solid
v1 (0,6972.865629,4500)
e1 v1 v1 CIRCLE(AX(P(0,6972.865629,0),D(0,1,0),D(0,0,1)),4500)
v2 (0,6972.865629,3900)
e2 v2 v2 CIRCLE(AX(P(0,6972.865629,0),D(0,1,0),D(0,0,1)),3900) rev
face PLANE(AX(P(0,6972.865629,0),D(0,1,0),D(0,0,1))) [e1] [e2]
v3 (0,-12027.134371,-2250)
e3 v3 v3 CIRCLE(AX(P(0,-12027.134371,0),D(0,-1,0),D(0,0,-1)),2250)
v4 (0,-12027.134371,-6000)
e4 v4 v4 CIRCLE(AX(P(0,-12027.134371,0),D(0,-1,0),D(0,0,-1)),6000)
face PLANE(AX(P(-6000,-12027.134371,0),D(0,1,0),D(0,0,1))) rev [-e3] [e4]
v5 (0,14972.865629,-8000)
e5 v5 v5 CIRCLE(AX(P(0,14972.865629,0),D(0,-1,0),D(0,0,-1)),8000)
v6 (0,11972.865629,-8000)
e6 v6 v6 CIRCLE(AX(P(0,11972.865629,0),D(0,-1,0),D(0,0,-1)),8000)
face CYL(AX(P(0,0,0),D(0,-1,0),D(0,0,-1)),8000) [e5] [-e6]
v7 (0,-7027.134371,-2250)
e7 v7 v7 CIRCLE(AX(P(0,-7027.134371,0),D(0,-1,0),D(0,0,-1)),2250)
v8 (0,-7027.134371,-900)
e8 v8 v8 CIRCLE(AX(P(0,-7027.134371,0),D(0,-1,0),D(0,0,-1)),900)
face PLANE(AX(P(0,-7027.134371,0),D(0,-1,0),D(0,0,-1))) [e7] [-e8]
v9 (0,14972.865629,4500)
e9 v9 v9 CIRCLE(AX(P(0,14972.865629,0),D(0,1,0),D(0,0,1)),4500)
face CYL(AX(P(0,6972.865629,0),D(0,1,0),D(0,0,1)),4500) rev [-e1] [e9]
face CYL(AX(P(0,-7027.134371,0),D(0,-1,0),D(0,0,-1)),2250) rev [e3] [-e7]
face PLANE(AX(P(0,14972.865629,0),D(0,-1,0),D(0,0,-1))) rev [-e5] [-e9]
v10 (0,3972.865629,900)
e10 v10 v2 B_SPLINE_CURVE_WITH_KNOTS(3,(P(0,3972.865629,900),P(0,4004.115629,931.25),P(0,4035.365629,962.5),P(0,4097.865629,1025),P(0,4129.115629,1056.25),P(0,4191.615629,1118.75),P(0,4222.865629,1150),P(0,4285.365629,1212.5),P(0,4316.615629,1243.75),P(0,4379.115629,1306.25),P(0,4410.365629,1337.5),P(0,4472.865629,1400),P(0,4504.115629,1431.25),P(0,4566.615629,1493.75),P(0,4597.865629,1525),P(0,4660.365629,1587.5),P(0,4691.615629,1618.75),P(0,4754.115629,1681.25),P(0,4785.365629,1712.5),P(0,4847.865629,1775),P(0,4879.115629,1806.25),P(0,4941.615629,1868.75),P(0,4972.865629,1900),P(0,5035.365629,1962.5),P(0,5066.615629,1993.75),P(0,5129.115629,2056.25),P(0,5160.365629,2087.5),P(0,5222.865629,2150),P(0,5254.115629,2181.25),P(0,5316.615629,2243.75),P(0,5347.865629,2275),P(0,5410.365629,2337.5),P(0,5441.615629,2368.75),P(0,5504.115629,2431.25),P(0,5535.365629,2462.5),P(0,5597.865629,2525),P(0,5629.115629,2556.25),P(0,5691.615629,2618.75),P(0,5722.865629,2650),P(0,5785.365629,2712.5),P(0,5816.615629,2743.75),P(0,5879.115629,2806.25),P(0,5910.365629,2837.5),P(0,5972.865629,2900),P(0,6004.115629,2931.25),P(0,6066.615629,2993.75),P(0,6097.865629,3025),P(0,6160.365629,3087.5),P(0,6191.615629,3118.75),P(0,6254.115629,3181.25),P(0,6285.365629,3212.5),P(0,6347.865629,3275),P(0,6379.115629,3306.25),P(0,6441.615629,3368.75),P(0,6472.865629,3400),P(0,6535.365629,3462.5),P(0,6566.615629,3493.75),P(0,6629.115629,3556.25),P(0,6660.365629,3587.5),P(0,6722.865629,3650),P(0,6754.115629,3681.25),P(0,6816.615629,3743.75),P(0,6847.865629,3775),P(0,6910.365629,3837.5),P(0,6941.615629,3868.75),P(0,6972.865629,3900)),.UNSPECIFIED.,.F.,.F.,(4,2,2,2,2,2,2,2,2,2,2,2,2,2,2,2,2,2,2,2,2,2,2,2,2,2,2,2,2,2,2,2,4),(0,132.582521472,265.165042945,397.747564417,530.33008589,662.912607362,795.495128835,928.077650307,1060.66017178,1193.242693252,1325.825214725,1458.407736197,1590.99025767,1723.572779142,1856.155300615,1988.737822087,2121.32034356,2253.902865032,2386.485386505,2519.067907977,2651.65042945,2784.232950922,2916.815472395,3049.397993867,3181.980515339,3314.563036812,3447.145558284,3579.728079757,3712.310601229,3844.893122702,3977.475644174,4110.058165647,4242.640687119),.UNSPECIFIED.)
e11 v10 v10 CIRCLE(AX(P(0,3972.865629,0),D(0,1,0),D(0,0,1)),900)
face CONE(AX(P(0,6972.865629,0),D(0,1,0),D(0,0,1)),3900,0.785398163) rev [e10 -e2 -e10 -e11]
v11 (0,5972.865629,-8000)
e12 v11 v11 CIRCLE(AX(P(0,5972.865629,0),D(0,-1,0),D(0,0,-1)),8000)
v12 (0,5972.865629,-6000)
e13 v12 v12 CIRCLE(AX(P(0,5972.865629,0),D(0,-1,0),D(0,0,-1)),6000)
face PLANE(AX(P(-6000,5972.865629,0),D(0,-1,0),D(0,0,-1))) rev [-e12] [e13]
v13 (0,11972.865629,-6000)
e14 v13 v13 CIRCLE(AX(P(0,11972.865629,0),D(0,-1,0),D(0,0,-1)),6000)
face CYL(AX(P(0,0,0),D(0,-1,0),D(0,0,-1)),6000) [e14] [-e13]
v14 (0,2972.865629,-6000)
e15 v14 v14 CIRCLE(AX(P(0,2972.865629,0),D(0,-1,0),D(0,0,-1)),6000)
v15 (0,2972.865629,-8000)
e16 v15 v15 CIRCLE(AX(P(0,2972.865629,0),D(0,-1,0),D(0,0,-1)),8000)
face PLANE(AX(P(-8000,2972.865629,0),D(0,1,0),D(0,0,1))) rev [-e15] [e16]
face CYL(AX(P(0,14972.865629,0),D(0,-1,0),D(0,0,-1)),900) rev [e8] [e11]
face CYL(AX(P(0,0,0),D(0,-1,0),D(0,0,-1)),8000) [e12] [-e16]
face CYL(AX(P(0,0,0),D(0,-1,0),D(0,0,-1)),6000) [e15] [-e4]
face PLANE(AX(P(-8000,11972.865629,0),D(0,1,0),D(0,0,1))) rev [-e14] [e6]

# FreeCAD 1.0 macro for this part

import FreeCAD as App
import Part
import Sketcher

V = App.Vector
Q = App.Units.Quantity


def edges_at(feature, points):
    """Names of the edges that pass closest to the given points."""
    edges = feature.Shape.Edges
    near = lambda p: min(range(len(edges)), key=lambda i: edges[i].distToShape(Part.Vertex(*p))[0])
    return sorted({f"Edge{near(p) + 1}" for p in points})


def add_polygon(sketch, points):
    """Adds a closed chain of lines whose ends are joined by coincident constraints."""
    first, n = sketch.GeometryCount, len(points)
    for a, b in zip(points, points[1:] + points[:1]):
        sketch.addGeometry(Part.LineSegment(App.Vector(*a, 0), App.Vector(*b, 0)), False)
    for i in range(n):
        sketch.addConstraint(Sketcher.Constraint("Coincident", first + i, 2, first + (i + 1) % n, 1))

doc = App.newDocument("Part")
body = doc.addObject("PartDesign::Body", "Body")

# Sketch on XY plane
sketch1 = body.newObject("Sketcher::SketchObject", "Sketch")
sketch1.AttachmentSupport = (doc.getObject("XY_Plane"), [""])
sketch1.MapMode = "FlatFace"
add_polygon(sketch1, [(0, 14973), (-8000, 14973), (-8000, 11973), (-6000, 11973), (-6000, 5973), (-8000, 5973), (-8000, 2973), (-6000, 2973), (-6000, -12027), (0, -12027)])  # lines 0-9
sketch1.addConstraint(Sketcher.Constraint("Horizontal", 0))
sketch1.addConstraint(Sketcher.Constraint("Vertical", 1))
sketch1.addConstraint(Sketcher.Constraint("Horizontal", 2))
sketch1.addConstraint(Sketcher.Constraint("Vertical", 3))
sketch1.addConstraint(Sketcher.Constraint("Horizontal", 4))
sketch1.addConstraint(Sketcher.Constraint("Vertical", 5))
sketch1.addConstraint(Sketcher.Constraint("Horizontal", 6))
sketch1.addConstraint(Sketcher.Constraint("Vertical", 7))
sketch1.addConstraint(Sketcher.Constraint("Horizontal", 8))
sketch1.addConstraint(Sketcher.Constraint("Vertical", 9))
sketch1.addConstraint(Sketcher.Constraint("PointOnObject", 8, 2, -2))
sketch1.addConstraint(Sketcher.Constraint("Vertical", 1, 2, 4, 2))
sketch1.addConstraint(Sketcher.Constraint("Vertical", 3, 2, 6, 2))
sketch1.addConstraint(Sketcher.Constraint("Equal", 8, 3))
sketch1.addConstraint(Sketcher.Constraint("Equal", 1, 5))
sketch1.addConstraint(Sketcher.Constraint("DistanceX", 0, 2, 0, 1, Q("8000 mm")))
sketch1.addConstraint(Sketcher.Constraint("DistanceX", 2, 1, 2, 2, Q("2000 mm")))
sketch1.addConstraint(Sketcher.Constraint("DistanceY", 1, 2, 1, 1, Q("3000 mm")))
sketch1.addConstraint(Sketcher.Constraint("DistanceY", 7, 2, 7, 1, Q("15000 mm")))
sketch1.addConstraint(Sketcher.Constraint("DistanceY", -1, 1, 0, 2, Q("14972.865629 mm")))
revolution = body.newObject("PartDesign::Revolution", "Revolution")
revolution.Profile = sketch1
revolution.ReferenceAxis = (sketch1, ["V_Axis"])
revolution.Angle = 360

# Sketch on XZ plane
sketch2 = body.newObject("Sketcher::SketchObject", "Sketch001")
sketch2.AttachmentSupport = (doc.getObject("XZ_Plane"), [""])
sketch2.MapMode = "FlatFace"
sketch2.AttachmentOffset = App.Placement(V(0, 0, 12027.134371), App.Rotation())
sketch2.addGeometry(Part.Circle(V(0, 0, 0), V(0, 0, 1), 2250), False)
sketch2.addGeometry(Part.Circle(V(0, 0, 0), V(0, 0, 1), 900), False)
sketch2.addConstraint(Sketcher.Constraint("Coincident", 0, 3, -1, 1))
sketch2.addConstraint(Sketcher.Constraint("Coincident", 1, 3, -1, 1))
sketch2.addConstraint(Sketcher.Constraint("Diameter", 0, Q("4500 mm")))
sketch2.addConstraint(Sketcher.Constraint("Diameter", 1, Q("1800 mm")))
pocket1 = body.newObject("PartDesign::Pocket", "Pocket")
pocket1.Profile = sketch2
pocket1.Length = 5000

# Sketch on XZ plane
sketch3 = body.newObject("Sketcher::SketchObject", "Sketch002")
sketch3.AttachmentSupport = (doc.getObject("XZ_Plane"), [""])
sketch3.MapMode = "FlatFace"
sketch3.AttachmentOffset = App.Placement(V(0, 0, 12027.134371), App.Rotation())
sketch3.addGeometry(Part.Circle(V(0, 0, 0), V(0, 0, 1), 900), False)
sketch3.addConstraint(Sketcher.Constraint("Coincident", 0, 3, -1, 1))
sketch3.addConstraint(Sketcher.Constraint("Diameter", 0, Q("1800 mm")))
pocket2 = body.newObject("PartDesign::Pocket", "Pocket001")
pocket2.Profile = sketch3
pocket2.Type = "ThroughAll"

# Sketch on XZ plane
sketch4 = body.newObject("Sketcher::SketchObject", "Sketch003")
sketch4.AttachmentSupport = (doc.getObject("XZ_Plane"), [""])
sketch4.MapMode = "FlatFace"
sketch4.AttachmentOffset = App.Placement(V(0, 0, -14972.865629), App.Rotation())
sketch4.addGeometry(Part.Circle(V(0, 0, 0), V(0, 0, 1), 4500), False)
sketch4.addConstraint(Sketcher.Constraint("Coincident", 0, 3, -1, 1))
sketch4.addConstraint(Sketcher.Constraint("Diameter", 0, Q("9000 mm")))
pocket3 = body.newObject("PartDesign::Pocket", "Pocket002")
pocket3.Profile = sketch4
pocket3.Length = 8000
pocket3.Reversed = True
doc.recompute()

chamfer = body.newObject("PartDesign::Chamfer", "Chamfer")
chamfer.Base = (pocket3, edges_at(pocket3, [(0, 6972.866, 900)]))
chamfer.Size = 3000

doc.recompute()
